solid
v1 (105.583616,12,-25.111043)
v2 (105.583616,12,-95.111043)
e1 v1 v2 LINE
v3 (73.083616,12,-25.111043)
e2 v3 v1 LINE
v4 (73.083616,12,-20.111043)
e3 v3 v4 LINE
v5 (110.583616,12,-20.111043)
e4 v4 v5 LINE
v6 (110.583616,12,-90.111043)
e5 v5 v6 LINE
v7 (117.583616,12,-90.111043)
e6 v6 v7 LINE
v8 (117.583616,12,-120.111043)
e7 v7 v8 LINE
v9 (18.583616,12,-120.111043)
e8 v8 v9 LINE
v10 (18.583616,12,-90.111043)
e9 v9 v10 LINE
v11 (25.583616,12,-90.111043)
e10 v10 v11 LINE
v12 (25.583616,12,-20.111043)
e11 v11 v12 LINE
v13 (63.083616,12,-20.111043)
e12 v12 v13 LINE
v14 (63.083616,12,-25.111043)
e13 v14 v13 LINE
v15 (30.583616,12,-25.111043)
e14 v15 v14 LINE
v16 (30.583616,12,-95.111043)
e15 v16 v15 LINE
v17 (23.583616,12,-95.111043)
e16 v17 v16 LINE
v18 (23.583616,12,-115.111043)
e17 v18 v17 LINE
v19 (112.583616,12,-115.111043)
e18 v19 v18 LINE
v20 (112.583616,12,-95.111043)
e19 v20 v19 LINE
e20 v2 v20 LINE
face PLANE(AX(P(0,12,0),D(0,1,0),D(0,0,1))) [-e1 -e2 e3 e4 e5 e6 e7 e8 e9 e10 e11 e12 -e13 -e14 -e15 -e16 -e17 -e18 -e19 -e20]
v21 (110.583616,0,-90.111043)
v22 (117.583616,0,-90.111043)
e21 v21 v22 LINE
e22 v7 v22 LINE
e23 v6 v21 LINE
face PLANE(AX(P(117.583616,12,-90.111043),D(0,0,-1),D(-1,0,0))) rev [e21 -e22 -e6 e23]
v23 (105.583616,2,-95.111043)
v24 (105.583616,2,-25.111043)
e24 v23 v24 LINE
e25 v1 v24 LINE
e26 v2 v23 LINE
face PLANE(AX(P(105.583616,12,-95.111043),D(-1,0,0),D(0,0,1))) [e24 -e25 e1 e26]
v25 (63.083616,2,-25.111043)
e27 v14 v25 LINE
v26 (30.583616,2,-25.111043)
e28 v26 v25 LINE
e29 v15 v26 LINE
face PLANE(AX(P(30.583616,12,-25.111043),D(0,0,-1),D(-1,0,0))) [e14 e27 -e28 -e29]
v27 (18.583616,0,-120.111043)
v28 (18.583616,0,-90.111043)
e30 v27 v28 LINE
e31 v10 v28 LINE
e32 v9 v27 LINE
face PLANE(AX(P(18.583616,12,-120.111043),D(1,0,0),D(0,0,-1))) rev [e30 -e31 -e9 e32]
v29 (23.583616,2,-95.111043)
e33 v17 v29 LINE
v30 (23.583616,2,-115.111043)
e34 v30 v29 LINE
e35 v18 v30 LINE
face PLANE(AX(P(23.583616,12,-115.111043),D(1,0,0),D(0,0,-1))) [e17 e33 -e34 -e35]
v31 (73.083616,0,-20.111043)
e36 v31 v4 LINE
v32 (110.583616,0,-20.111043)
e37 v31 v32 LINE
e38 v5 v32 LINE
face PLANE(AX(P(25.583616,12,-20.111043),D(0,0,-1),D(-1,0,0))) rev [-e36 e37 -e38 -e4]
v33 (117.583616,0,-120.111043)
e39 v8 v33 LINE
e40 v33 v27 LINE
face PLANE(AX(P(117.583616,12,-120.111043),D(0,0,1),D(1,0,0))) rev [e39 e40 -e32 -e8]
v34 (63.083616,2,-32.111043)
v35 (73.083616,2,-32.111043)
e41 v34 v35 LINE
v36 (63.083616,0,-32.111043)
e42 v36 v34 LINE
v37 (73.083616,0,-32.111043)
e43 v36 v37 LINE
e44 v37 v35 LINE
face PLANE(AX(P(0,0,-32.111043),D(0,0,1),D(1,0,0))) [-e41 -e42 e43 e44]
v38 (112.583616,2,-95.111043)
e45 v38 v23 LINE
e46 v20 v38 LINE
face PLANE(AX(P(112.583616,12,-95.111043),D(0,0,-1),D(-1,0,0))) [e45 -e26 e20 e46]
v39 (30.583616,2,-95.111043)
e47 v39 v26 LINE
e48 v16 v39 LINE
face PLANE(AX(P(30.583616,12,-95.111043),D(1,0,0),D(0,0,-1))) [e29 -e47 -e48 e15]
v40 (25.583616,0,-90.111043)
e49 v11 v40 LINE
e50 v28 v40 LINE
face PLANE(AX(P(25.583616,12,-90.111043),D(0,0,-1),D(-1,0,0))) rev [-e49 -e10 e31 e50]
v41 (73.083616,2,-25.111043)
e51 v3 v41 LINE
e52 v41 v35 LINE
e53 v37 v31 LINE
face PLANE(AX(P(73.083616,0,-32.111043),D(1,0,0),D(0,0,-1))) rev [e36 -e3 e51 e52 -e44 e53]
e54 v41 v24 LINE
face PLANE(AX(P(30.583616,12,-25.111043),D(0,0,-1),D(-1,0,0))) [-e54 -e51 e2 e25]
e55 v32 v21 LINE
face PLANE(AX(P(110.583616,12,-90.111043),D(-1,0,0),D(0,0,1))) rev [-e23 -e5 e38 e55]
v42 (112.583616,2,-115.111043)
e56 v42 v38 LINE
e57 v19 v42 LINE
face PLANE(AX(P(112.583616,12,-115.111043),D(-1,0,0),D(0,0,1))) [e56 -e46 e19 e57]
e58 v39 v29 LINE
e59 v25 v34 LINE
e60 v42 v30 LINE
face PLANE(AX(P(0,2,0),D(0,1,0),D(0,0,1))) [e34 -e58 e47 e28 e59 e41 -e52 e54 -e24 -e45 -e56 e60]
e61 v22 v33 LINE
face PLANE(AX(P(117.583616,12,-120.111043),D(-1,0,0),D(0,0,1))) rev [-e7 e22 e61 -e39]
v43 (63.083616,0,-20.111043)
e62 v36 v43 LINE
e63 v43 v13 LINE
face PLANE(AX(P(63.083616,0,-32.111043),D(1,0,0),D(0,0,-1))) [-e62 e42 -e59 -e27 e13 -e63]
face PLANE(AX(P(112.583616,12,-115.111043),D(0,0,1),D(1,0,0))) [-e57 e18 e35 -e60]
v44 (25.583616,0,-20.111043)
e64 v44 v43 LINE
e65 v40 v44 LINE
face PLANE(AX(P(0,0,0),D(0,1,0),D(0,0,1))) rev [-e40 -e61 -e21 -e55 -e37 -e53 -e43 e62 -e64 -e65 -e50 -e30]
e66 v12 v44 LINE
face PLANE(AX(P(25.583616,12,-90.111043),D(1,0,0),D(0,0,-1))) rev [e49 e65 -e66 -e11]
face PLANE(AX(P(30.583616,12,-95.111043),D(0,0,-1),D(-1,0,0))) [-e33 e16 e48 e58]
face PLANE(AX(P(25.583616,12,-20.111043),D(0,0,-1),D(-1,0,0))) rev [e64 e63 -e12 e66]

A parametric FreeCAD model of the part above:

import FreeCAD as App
import Part
import Sketcher


def add_polygon(sketch, points):
    """Adds a closed chain of lines whose ends are joined by coincident constraints."""
    first, n = sketch.GeometryCount, len(points)
    for a, b in zip(points, points[1:] + points[:1]):
        sketch.addGeometry(Part.LineSegment(App.Vector(*a, 0), App.Vector(*b, 0)), False)
    for i in range(n):
        sketch.addConstraint(Sketcher.Constraint("Coincident", first + i, 2, first + (i + 1) % n, 1))

doc = App.newDocument("Part")
params = doc.addObject("Spreadsheet::Sheet", "Params")
for row, (alias, value) in enumerate([
    ("sketch1_width", "7 mm"),
    ("sketch1_width2", "75 mm"),
    ("sketch1_height", "70 mm"),
    ("sketch1_height2", "20 mm"),
    ("pad1_length", "2 mm"),
    ("sketch2_width", "85 mm"),
    ("sketch2_width2", "7 mm"),
    ("sketch2_width3", "89 mm"),
    ("sketch2_height", "70 mm"),
    ("sketch2_height2", "30 mm"),
    ("pad2_length", "12 mm"),
    ("sketch3_width", "10 mm"),
    ("sketch3_height", "12 mm"),
    ("pocket1_length", "12 mm"),
], start=1):
    params.set(f"A{row}", alias)
    params.set(f"B{row}", "=" + value)
    params.setAlias(f"B{row}", alias)

body = doc.addObject("PartDesign::Body", "Body")

sketch1 = body.newObject("Sketcher::SketchObject", "Sketch")
sketch1.AttachmentSupport = (doc.getObject("XZ_Plane"), [""])
sketch1.MapMode = "FlatFace"
add_polygon(sketch1, [(24, -95), (31, -95), (31, -25), (106, -25), (106, -95), (113, -95), (113, -115), (24, -115)])
sketch1.addConstraint(Sketcher.Constraint("Horizontal", 0))
sketch1.addConstraint(Sketcher.Constraint("Vertical", 1))
sketch1.addConstraint(Sketcher.Constraint("Horizontal", 2))
sketch1.addConstraint(Sketcher.Constraint("Vertical", 3))
sketch1.addConstraint(Sketcher.Constraint("Horizontal", 4))
sketch1.addConstraint(Sketcher.Constraint("Vertical", 5))
sketch1.addConstraint(Sketcher.Constraint("Horizontal", 6))
sketch1.addConstraint(Sketcher.Constraint("Vertical", 7))
sketch1.addConstraint(Sketcher.Constraint("Horizontal", 0, 2, 3, 2))
sketch1.addConstraint(Sketcher.Constraint("Equal", 0, 4))
sketch1.addConstraint(Sketcher.Constraint("DistanceX", 0, 1, 0, 2, 7.0))
sketch1.addConstraint(Sketcher.Constraint("DistanceX", 2, 1, 2, 2, 75.0))
sketch1.addConstraint(Sketcher.Constraint("DistanceY", 1, 1, 1, 2, 70.0))
sketch1.addConstraint(Sketcher.Constraint("DistanceY", 5, 2, 5, 1, 20.0))
sketch1.addConstraint(Sketcher.Constraint("DistanceX", -1, 1, 0, 2, 30.583616))
sketch1.addConstraint(Sketcher.Constraint("DistanceY", 0, 2, -1, 1, 95.111043))
sketch1.setExpression("Constraints[18]", "Params.sketch1_width")
sketch1.setExpression("Constraints[19]", "Params.sketch1_width2")
sketch1.setExpression("Constraints[20]", "Params.sketch1_height")
sketch1.setExpression("Constraints[21]", "Params.sketch1_height2")
pad1 = body.newObject("PartDesign::Pad", "Pad")
pad1.Profile = sketch1
pad1.setExpression("Length", "Params.pad1_length")
pad1.Reversed = True

sketch2 = body.newObject("Sketcher::SketchObject", "Sketch001")
sketch2.AttachmentSupport = (doc.getObject("XZ_Plane"), [""])
sketch2.MapMode = "FlatFace"
add_polygon(sketch2, [(26, -90), (26, -20), (111, -20), (111, -90), (118, -90), (118, -120), (19, -120), (19, -90)])
add_polygon(sketch2, [(31, -25), (31, -95), (24, -95), (24, -115), (113, -115), (113, -95), (106, -95), (106, -25)])
sketch2.addConstraint(Sketcher.Constraint("Vertical", 0))
sketch2.addConstraint(Sketcher.Constraint("Horizontal", 1))
sketch2.addConstraint(Sketcher.Constraint("Vertical", 2))
sketch2.addConstraint(Sketcher.Constraint("Horizontal", 3))
sketch2.addConstraint(Sketcher.Constraint("Vertical", 4))
sketch2.addConstraint(Sketcher.Constraint("Horizontal", 5))
sketch2.addConstraint(Sketcher.Constraint("Vertical", 6))
sketch2.addConstraint(Sketcher.Constraint("Horizontal", 7))
sketch2.addConstraint(Sketcher.Constraint("Vertical", 8))
sketch2.addConstraint(Sketcher.Constraint("Horizontal", 9))
sketch2.addConstraint(Sketcher.Constraint("Vertical", 10))
sketch2.addConstraint(Sketcher.Constraint("Horizontal", 11))
sketch2.addConstraint(Sketcher.Constraint("Vertical", 12))
sketch2.addConstraint(Sketcher.Constraint("Horizontal", 13))
sketch2.addConstraint(Sketcher.Constraint("Vertical", 14))
sketch2.addConstraint(Sketcher.Constraint("Horizontal", 15))
sketch2.addConstraint(Sketcher.Constraint("Horizontal", 3, 2, 6, 2))
sketch2.addConstraint(Sketcher.Constraint("Horizontal", 9, 2, 12, 2))
sketch2.addConstraint(Sketcher.Constraint("Equal", 3, 7))
sketch2.addConstraint(Sketcher.Constraint("Equal", 7, 9))
sketch2.addConstraint(Sketcher.Constraint("Equal", 9, 13))
sketch2.addConstraint(Sketcher.Constraint("Equal", 2, 8))
sketch2.addConstraint(Sketcher.Constraint("DistanceX", 1, 1, 1, 2, 85.0))
sketch2.addConstraint(Sketcher.Constraint("DistanceX", 3, 1, 3, 2, 7.0))
sketch2.addConstraint(Sketcher.Constraint("DistanceX", 11, 1, 11, 2, 89.0))
sketch2.addConstraint(Sketcher.Constraint("DistanceY", 0, 1, 0, 2, 70.0))
sketch2.addConstraint(Sketcher.Constraint("DistanceY", 4, 2, 4, 1, 30.0))
sketch2.addConstraint(Sketcher.Constraint("DistanceY", 10, 2, 10, 1, 20.0))
sketch2.addConstraint(Sketcher.Constraint("DistanceX", 7, 2, 8, 2, 5.0))
sketch2.addConstraint(Sketcher.Constraint("DistanceY", 8, 2, 7, 2, 5.0))
sketch2.addConstraint(Sketcher.Constraint("DistanceX", -1, 1, 0, 2, 25.583616))
sketch2.addConstraint(Sketcher.Constraint("DistanceY", 0, 2, -1, 1, 20.111043))
sketch2.setExpression("Constraints[38]", "Params.sketch2_width")
sketch2.setExpression("Constraints[39]", "Params.sketch2_width2")
sketch2.setExpression("Constraints[40]", "Params.sketch2_width3")
sketch2.setExpression("Constraints[41]", "Params.sketch2_height")
sketch2.setExpression("Constraints[42]", "Params.sketch2_height2")
pad2 = body.newObject("PartDesign::Pad", "Pad001")
pad2.Profile = sketch2
pad2.setExpression("Length", "Params.pad2_length")
pad2.Reversed = True

sketch3 = body.newObject("Sketcher::SketchObject", "Sketch002")
sketch3.AttachmentSupport = (doc.getObject("XY_Plane"), [""])
sketch3.MapMode = "FlatFace"
sketch3.AttachmentOffset = App.Placement(App.Vector(0, 0, -20.111043), App.Rotation())
add_polygon(sketch3, [(63, 12), (63, 0), (73, 0), (73, 12)])
sketch3.addConstraint(Sketcher.Constraint("Vertical", 0))
sketch3.addConstraint(Sketcher.Constraint("Horizontal", 1))
sketch3.addConstraint(Sketcher.Constraint("Vertical", 2))
sketch3.addConstraint(Sketcher.Constraint("Horizontal", 3))
sketch3.addConstraint(Sketcher.Constraint("PointOnObject", 0, 2, -1))
sketch3.addConstraint(Sketcher.Constraint("DistanceX", 1, 1, 1, 2, 10.0))
sketch3.addConstraint(Sketcher.Constraint("DistanceY", 0, 2, 0, 1, 12.0))
sketch3.addConstraint(Sketcher.Constraint("DistanceX", -1, 1, 0, 2, 63.083616))
sketch3.setExpression("Constraints[9]", "Params.sketch3_width")
sketch3.setExpression("Constraints[10]", "Params.sketch3_height")
pocket1 = body.newObject("PartDesign::Pocket", "Pocket")
pocket1.Profile = sketch3
pocket1.setExpression("Length", "Params.pocket1_length")

doc.recompute()
